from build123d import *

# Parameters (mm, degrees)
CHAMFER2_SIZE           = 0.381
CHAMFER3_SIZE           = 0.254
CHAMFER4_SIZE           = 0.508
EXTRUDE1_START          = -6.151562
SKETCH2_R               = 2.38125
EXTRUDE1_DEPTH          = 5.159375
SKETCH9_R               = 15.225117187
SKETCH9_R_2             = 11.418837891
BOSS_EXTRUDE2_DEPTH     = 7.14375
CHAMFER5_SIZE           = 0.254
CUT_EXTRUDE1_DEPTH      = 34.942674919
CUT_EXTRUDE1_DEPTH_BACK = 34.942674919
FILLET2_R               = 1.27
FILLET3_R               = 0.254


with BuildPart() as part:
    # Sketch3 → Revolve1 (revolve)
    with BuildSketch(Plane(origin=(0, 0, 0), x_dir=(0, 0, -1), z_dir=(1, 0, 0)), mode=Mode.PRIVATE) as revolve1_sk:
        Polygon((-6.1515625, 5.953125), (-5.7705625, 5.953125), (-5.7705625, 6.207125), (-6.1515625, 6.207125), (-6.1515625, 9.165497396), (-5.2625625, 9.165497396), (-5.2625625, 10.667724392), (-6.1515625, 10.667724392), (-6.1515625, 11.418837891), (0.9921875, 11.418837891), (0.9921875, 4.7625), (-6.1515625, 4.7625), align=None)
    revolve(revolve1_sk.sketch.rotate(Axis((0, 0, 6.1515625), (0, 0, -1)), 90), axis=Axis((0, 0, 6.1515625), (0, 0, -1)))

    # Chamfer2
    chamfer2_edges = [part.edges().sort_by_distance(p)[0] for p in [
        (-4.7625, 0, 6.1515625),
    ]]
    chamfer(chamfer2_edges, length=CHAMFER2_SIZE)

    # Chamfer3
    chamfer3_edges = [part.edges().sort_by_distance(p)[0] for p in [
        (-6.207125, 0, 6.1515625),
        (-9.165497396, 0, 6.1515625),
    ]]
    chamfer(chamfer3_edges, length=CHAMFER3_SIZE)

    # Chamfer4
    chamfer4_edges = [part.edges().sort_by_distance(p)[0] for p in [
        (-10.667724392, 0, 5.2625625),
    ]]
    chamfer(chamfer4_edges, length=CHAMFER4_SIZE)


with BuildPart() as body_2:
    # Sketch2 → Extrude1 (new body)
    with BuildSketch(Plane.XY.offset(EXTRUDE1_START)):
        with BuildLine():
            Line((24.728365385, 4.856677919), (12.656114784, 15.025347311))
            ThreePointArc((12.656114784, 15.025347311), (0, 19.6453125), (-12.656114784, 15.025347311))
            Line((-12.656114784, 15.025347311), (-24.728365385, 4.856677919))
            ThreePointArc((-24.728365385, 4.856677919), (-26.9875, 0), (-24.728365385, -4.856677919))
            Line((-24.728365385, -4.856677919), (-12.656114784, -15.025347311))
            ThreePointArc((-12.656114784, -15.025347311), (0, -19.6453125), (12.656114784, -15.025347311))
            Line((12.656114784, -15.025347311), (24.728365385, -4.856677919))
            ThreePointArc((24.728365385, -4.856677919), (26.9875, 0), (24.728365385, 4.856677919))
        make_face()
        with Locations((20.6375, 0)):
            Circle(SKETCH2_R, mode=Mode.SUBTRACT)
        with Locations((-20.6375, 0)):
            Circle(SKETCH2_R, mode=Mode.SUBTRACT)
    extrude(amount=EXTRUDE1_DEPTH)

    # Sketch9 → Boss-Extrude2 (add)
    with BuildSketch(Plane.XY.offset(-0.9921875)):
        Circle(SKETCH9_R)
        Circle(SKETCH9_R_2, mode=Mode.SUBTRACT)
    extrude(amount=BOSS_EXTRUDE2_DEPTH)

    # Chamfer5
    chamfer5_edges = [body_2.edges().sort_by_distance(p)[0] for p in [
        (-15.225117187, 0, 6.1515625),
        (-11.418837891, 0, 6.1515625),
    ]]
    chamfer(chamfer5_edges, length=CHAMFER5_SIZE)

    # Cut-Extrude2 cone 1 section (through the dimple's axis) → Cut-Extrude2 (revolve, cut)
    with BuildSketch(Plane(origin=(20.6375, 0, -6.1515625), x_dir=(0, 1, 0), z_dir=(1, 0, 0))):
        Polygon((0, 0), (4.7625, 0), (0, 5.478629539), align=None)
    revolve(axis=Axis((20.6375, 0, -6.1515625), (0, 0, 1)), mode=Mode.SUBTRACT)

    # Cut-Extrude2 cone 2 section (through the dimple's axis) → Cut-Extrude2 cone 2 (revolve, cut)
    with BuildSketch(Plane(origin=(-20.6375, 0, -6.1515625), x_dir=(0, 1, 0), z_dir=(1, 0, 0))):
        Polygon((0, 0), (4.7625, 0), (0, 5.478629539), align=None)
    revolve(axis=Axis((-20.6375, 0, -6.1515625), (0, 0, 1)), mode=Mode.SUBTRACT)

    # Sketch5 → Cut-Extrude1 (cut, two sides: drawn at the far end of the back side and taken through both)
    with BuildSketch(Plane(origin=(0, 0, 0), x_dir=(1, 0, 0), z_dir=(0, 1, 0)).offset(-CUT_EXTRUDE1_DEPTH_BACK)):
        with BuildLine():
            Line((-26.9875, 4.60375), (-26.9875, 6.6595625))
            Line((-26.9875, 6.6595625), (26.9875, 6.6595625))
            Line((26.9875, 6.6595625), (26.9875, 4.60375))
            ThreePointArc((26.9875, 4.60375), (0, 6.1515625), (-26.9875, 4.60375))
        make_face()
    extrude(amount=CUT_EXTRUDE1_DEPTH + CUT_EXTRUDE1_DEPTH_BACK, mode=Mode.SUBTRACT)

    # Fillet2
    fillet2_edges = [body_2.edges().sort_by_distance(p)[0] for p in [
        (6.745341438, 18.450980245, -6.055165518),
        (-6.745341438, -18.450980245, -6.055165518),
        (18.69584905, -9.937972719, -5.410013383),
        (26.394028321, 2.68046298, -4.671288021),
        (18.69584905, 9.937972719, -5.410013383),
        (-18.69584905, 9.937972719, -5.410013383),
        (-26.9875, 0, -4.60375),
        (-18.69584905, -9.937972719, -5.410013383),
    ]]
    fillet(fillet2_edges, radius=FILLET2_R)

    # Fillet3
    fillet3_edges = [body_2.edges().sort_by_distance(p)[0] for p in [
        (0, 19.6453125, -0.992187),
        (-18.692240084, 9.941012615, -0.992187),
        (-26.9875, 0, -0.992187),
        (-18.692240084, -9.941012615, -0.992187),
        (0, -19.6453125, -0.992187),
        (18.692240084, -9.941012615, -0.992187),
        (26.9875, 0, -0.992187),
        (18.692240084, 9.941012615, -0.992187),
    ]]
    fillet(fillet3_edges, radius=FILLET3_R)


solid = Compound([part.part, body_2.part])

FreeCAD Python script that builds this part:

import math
import FreeCAD as App
import Part
import Sketcher
from FreeCAD import Vector
Q = App.Units.Quantity


def edges_at(feature, points):
    """Names of the edges that pass closest to the given points."""
    edges = feature.Shape.Edges
    near = lambda p: min(range(len(edges)), key=lambda i: edges[i].distToShape(Part.Vertex(*p))[0])
    return sorted({f"Edge{near(p) + 1}" for p in points})


def add_polygon(sketch, points):
    """Adds a closed chain of lines whose ends are joined by coincident constraints."""
    first, n = sketch.GeometryCount, len(points)
    for a, b in zip(points, points[1:] + points[:1]):
        sketch.addGeometry(Part.LineSegment(App.Vector(*a, 0), App.Vector(*b, 0)), False)
    for i in range(n):
        sketch.addConstraint(Sketcher.Constraint("Coincident", first + i, 2, first + (i + 1) % n, 1))

doc = App.newDocument("Part")
params = doc.addObject("Spreadsheet::Sheet", "Params")
for row, (alias, value) in enumerate([
    ("sketch1_width", "0.01 in"),
    ("sketch1_width2", "0.046875 in"),
    ("sketch1_height", "0.015 in"),
    ("sketch1_height2", "0.28125 in"),
    ("sketch1_height3", "0.035 in"),
    ("revolution_angle", "360 deg"),
    ("chamfer_size", "0.015 in"),
    ("chamfer2_size", "0.01 in"),
    ("chamfer3_size", "0.02 in"),
    ("sketch2_radius", "0.25 in"),
    ("sketch2_diameter", "0.1875 in"),
    ("pad1_length", "0.203125 in"),
    ("pad2_length", "0.28125 in"),
    ("chamfer4_size", "0.01 in"),
    ("sketch4_width", "0.1875 in"),
    ("groove_angle", "360 deg"),
    ("sketch5_width", "0.1875 in"),
    ("groove2_angle", "360 deg"),
    ("sketch6_width", "2.125 in"),
    ("fillet_radius", "0.05 in"),
    ("fillet2_radius", "0.01 in"),
], start=1):
    params.set(f"A{row}", alias)
    params.set(f"B{row}", "=" + value)
    params.setAlias(f"B{row}", alias)

body = doc.addObject("PartDesign::Body", "Body")

# Sketch on YZ plane
sketch1 = body.newObject("Sketcher::SketchObject", "Sketch")
sketch1.AttachmentSupport = (doc.getObject("YZ_Plane"), [""])
sketch1.MapMode = "FlatFace"
add_polygon(sketch1, [(5.953125, 5.770562), (5.953125, 6.151562), (4.7625, 6.151562), (4.7625, -0.992188), (11.418838, -0.992188), (11.418838, 6.151562), (10.667724, 6.151562), (10.667724, 5.262562), (9.165497, 5.262562), (9.165497, 6.151562), (6.207125, 6.151562), (6.207125, 5.770562)])  # lines 0-11
sketch1.addConstraint(Sketcher.Constraint("Vertical", 0))
sketch1.addConstraint(Sketcher.Constraint("Horizontal", 1))
sketch1.addConstraint(Sketcher.Constraint("Vertical", 2))
sketch1.addConstraint(Sketcher.Constraint("Horizontal", 3))
sketch1.addConstraint(Sketcher.Constraint("Vertical", 4))
sketch1.addConstraint(Sketcher.Constraint("Horizontal", 5))
sketch1.addConstraint(Sketcher.Constraint("Vertical", 6))
sketch1.addConstraint(Sketcher.Constraint("Horizontal", 7))
sketch1.addConstraint(Sketcher.Constraint("Vertical", 8))
sketch1.addConstraint(Sketcher.Constraint("Horizontal", 9))
sketch1.addConstraint(Sketcher.Constraint("Vertical", 10))
sketch1.addConstraint(Sketcher.Constraint("Horizontal", 11))
sketch1.addConstraint(Sketcher.Constraint("Horizontal", 1, 2, 4, 2))
sketch1.addConstraint(Sketcher.Constraint("Horizontal", 5, 2, 8, 2))
sketch1.addConstraint(Sketcher.Constraint("DistanceX", 11, 2, 11, 1, Q("0.01 in")))
sketch1.addConstraint(Sketcher.Constraint("DistanceX", 1, 2, 1, 1, Q("0.046875 in")))
sketch1.addConstraint(Sketcher.Constraint("DistanceY", 0, 1, 0, 2, Q("0.015 in")))
sketch1.addConstraint(Sketcher.Constraint("DistanceY", 2, 2, 2, 1, Q("0.28125 in")))
sketch1.addConstraint(Sketcher.Constraint("DistanceY", 6, 2, 6, 1, Q("0.035 in")))
sketch1.addConstraint(Sketcher.Constraint("DistanceX", -1, 1, 0, 2, Q("0.234375 in")))
sketch1.addConstraint(Sketcher.Constraint("DistanceX", 0, 2, 5, 2, Q("4.714599 mm")))
sketch1.addConstraint(Sketcher.Constraint("DistanceX", 3, 1, 3, 2, Q("6.656338 mm")))
sketch1.addConstraint(Sketcher.Constraint("DistanceX", 7, 2, 7, 1, Q("1.502227 mm")))
sketch1.addConstraint(Sketcher.Constraint("DistanceY", -1, 1, 0, 2, Q("6.151562 mm")))
sketch1.setExpression("Constraints[26]", "Params.sketch1_width")
sketch1.setExpression("Constraints[27]", "Params.sketch1_width2")
sketch1.setExpression("Constraints[28]", "Params.sketch1_height")
sketch1.setExpression("Constraints[29]", "Params.sketch1_height2")
sketch1.setExpression("Constraints[30]", "Params.sketch1_height3")
revolution = body.newObject("PartDesign::Revolution", "Revolution")
revolution.Profile = sketch1
revolution.ReferenceAxis = (sketch1, ["V_Axis"])
revolution.setExpression("Angle", "Params.revolution_angle")
doc.recompute()

chamfer = body.newObject("PartDesign::Chamfer", "Chamfer")
chamfer.Base = (revolution, edges_at(revolution, [(-4.763, 0, 6.152)]))
chamfer.setExpression("Size", "Params.chamfer_size")
doc.recompute()

chamfer2 = body.newObject("PartDesign::Chamfer", "Chamfer001")
chamfer2.Base = (chamfer, edges_at(chamfer, [(-6.207, 0, 6.152), (-9.165, 0, 6.152)]))
chamfer2.setExpression("Size", "Params.chamfer2_size")
doc.recompute()

chamfer3 = body.newObject("PartDesign::Chamfer", "Chamfer002")
chamfer3.Base = (chamfer2, edges_at(chamfer2, [(-10.668, 0, 5.263)]))
chamfer3.setExpression("Size", "Params.chamfer3_size")
body2 = doc.addObject("PartDesign::Body", "Body001")

# Sketch on XY plane
sketch2 = body2.newObject("Sketcher::SketchObject", "Sketch001")
sketch2.AttachmentSupport = (doc.getObject("XY_Plane001"), [""])
sketch2.MapMode = "FlatFace"
sketch2.AttachmentOffset = App.Placement(Vector(0, 0, -6.151562), App.Rotation())
sketch2.addGeometry(Part.LineSegment(Vector(24.728365, 4.856678, 0), Vector(12.656115, 15.025347, 0)), False)
sketch2.addGeometry(Part.ArcOfCircle(Part.Circle(Vector(0, 0, 0), Vector(0, 0, 1), 19.645313), math.radians(49.891974), math.radians(130.108026)), False)
sketch2.addGeometry(Part.LineSegment(Vector(-12.656115, 15.025347, 0), Vector(-24.728365, 4.856678, 0)), False)
sketch2.addGeometry(Part.ArcOfCircle(Part.Circle(Vector(-20.6375, 0, 0), Vector(0, 0, 1), 6.35), math.radians(130.108026), math.radians(229.891974)), False)
sketch2.addGeometry(Part.LineSegment(Vector(-24.728365, -4.856678, 0), Vector(-12.656115, -15.025347, 0)), False)
sketch2.addGeometry(Part.ArcOfCircle(Part.Circle(Vector(0, 0, 0), Vector(0, 0, 1), 19.645313), math.radians(-130.108026), math.radians(-49.891974)), False)
sketch2.addGeometry(Part.LineSegment(Vector(12.656115, -15.025347, 0), Vector(24.728365, -4.856678, 0)), False)
sketch2.addGeometry(Part.ArcOfCircle(Part.Circle(Vector(20.6375, 0, 0), Vector(0, 0, 1), 6.35), math.radians(-49.891974), math.radians(49.891974)), False)
sketch2.addGeometry(Part.Circle(Vector(-20.6375, 0, 0), Vector(0, 0, 1), 2.38125), False)
sketch2.addGeometry(Part.Circle(Vector(20.6375, 0, 0), Vector(0, 0, 1), 2.38125), False)
sketch2.addConstraint(Sketcher.Constraint("Tangent", 0, 2, 1, 1))
sketch2.addConstraint(Sketcher.Constraint("Tangent", 1, 2, 2, 1))
sketch2.addConstraint(Sketcher.Constraint("Tangent", 2, 2, 3, 1))
sketch2.addConstraint(Sketcher.Constraint("Tangent", 3, 2, 4, 1))
sketch2.addConstraint(Sketcher.Constraint("Tangent", 4, 2, 5, 1))
sketch2.addConstraint(Sketcher.Constraint("Tangent", 5, 2, 6, 1))
sketch2.addConstraint(Sketcher.Constraint("Tangent", 6, 2, 7, 1))
sketch2.addConstraint(Sketcher.Constraint("Tangent", 7, 2, 0, 1))
sketch2.addConstraint(Sketcher.Constraint("Coincident", 1, 3, -1, 1))
sketch2.addConstraint(Sketcher.Constraint("Coincident", 5, 3, -1, 1))
sketch2.addConstraint(Sketcher.Constraint("Coincident", 8, 3, 3, 3))
sketch2.addConstraint(Sketcher.Constraint("Coincident", 9, 3, 7, 3))
sketch2.addConstraint(Sketcher.Constraint("Equal", 1, 5))
sketch2.addConstraint(Sketcher.Constraint("Equal", 3, 7))
sketch2.addConstraint(Sketcher.Constraint("Equal", 8, 9))
sketch2.addConstraint(Sketcher.Constraint("Symmetric", 3, 3, 7, 3, -1, 1))
sketch2.addConstraint(Sketcher.Constraint("PointOnObject", 3, 3, -1))
sketch2.addConstraint(Sketcher.Constraint("Radius", 3, Q("0.25 in")))
sketch2.addConstraint(Sketcher.Constraint("Diameter", 8, Q("0.1875 in")))
sketch2.addConstraint(Sketcher.Constraint("DistanceX", 3, 3, -1, 1, Q("0.8125 in")))
sketch2.addConstraint(Sketcher.Constraint("Radius", 1, Q("19.645313 mm")))
sketch2.setExpression("Constraints[17]", "Params.sketch2_radius")
sketch2.setExpression("Constraints[18]", "Params.sketch2_diameter")
pad1 = body2.newObject("PartDesign::Pad", "Pad")
pad1.Profile = sketch2
pad1.setExpression("Length", "Params.pad1_length")

# Sketch on XY plane
sketch3 = body2.newObject("Sketcher::SketchObject", "Sketch002")
sketch3.AttachmentSupport = (doc.getObject("XY_Plane001"), [""])
sketch3.MapMode = "FlatFace"
sketch3.AttachmentOffset = App.Placement(Vector(0, 0, -0.992188), App.Rotation())
sketch3.addGeometry(Part.Circle(Vector(0, 0, 0), Vector(0, 0, 1), 15.225117), False)
sketch3.addGeometry(Part.Circle(Vector(0, 0, 0), Vector(0, 0, 1), 11.418838), False)
sketch3.addConstraint(Sketcher.Constraint("Coincident", 0, 3, -1, 1))
sketch3.addConstraint(Sketcher.Constraint("Coincident", 1, 3, -1, 1))
sketch3.addConstraint(Sketcher.Constraint("Diameter", 0, Q("30.450234 mm")))
sketch3.addConstraint(Sketcher.Constraint("Diameter", 1, Q("22.837676 mm")))
pad2 = body2.newObject("PartDesign::Pad", "Pad001")
pad2.Profile = sketch3
pad2.setExpression("Length", "Params.pad2_length")
doc.recompute()

chamfer4 = body2.newObject("PartDesign::Chamfer", "Chamfer003")
chamfer4.Base = (pad2, edges_at(pad2, [(-15.225, 0, 6.152), (-11.419, 0, 6.152)]))
chamfer4.setExpression("Size", "Params.chamfer4_size")

# Sketch on YZ plane
sketch4 = body2.newObject("Sketcher::SketchObject", "Sketch003")
sketch4.AttachmentSupport = (doc.getObject("YZ_Plane001"), [""])
sketch4.MapMode = "FlatFace"
sketch4.AttachmentOffset = App.Placement(Vector(0, 0, 0.8125 * 25.4), App.Rotation())
add_polygon(sketch4, [(0, -6.151562), (4.7625, -6.151562), (0, -0.672933)])  # lines 0-2
sketch4.addConstraint(Sketcher.Constraint("Horizontal", 0))
sketch4.addConstraint(Sketcher.Constraint("Vertical", 2))
sketch4.addConstraint(Sketcher.Constraint("PointOnObject", 1, 2, -2))
sketch4.addConstraint(Sketcher.Constraint("Angle", 1, Q("131 deg")))
sketch4.addConstraint(Sketcher.Constraint("DistanceX", 0, 1, 0, 2, Q("0.1875 in")))
sketch4.addConstraint(Sketcher.Constraint("DistanceY", 0, 2, -1, 1, Q("6.151562 mm")))
sketch4.setExpression("Constraints[7]", "Params.sketch4_width")
groove = body2.newObject("PartDesign::Groove", "Groove")
groove.Profile = sketch4
groove.ReferenceAxis = (sketch4, ["V_Axis"])
groove.setExpression("Angle", "Params.groove_angle")

# Sketch on YZ plane
sketch5 = body2.newObject("Sketcher::SketchObject", "Sketch004")
sketch5.AttachmentSupport = (doc.getObject("YZ_Plane001"), [""])
sketch5.MapMode = "FlatFace"
sketch5.AttachmentOffset = App.Placement(Vector(0, 0, -0.8125 * 25.4), App.Rotation())
add_polygon(sketch5, [(0, -6.151562), (4.7625, -6.151562), (0, -0.672933)])  # lines 0-2
sketch5.addConstraint(Sketcher.Constraint("Horizontal", 0))
sketch5.addConstraint(Sketcher.Constraint("Vertical", 2))
sketch5.addConstraint(Sketcher.Constraint("PointOnObject", 1, 2, -2))
sketch5.addConstraint(Sketcher.Constraint("Angle", 1, Q("131 deg")))
sketch5.addConstraint(Sketcher.Constraint("DistanceX", 0, 1, 0, 2, Q("0.1875 in")))
sketch5.addConstraint(Sketcher.Constraint("DistanceY", 0, 2, -1, 1, Q("6.151562 mm")))
sketch5.setExpression("Constraints[7]", "Params.sketch5_width")
groove2 = body2.newObject("PartDesign::Groove", "Groove001")
groove2.Profile = sketch5
groove2.ReferenceAxis = (sketch5, ["V_Axis"])
groove2.setExpression("Angle", "Params.groove2_angle")

# Sketch on XZ plane
sketch6 = body2.newObject("Sketcher::SketchObject", "Sketch005")
sketch6.AttachmentSupport = (doc.getObject("XZ_Plane001"), [""])
sketch6.MapMode = "FlatFace"
sketch6.addGeometry(Part.LineSegment(Vector(-26.9875, -6.659562, 0), Vector(-26.9875, -4.60375, 0)), False)
sketch6.addGeometry(Part.ArcOfCircle(Part.Circle(Vector(0, 229.897985, 0), Vector(0, 0, 1), 236.049547), math.radians(-96.564971), math.radians(-83.435029)), False)
sketch6.addGeometry(Part.LineSegment(Vector(26.9875, -4.60375, 0), Vector(26.9875, -6.659562, 0)), False)
sketch6.addGeometry(Part.LineSegment(Vector(26.9875, -6.659562, 0), Vector(-26.9875, -6.659562, 0)), False)
sketch6.addConstraint(Sketcher.Constraint("Coincident", 0, 2, 1, 1))
sketch6.addConstraint(Sketcher.Constraint("Coincident", 1, 2, 2, 1))
sketch6.addConstraint(Sketcher.Constraint("Coincident", 2, 2, 3, 1))
sketch6.addConstraint(Sketcher.Constraint("Coincident", 3, 2, 0, 1))
sketch6.addConstraint(Sketcher.Constraint("Vertical", 0))
sketch6.addConstraint(Sketcher.Constraint("Vertical", 2))
sketch6.addConstraint(Sketcher.Constraint("Horizontal", 3))
sketch6.addConstraint(Sketcher.Constraint("Symmetric", 0, 2, 1, 2, -2))
sketch6.addConstraint(Sketcher.Constraint("DistanceX", 3, 2, 3, 1, Q("2.125 in")))
sketch6.addConstraint(Sketcher.Constraint("Radius", 1, Q("236.049547 mm")))
sketch6.addConstraint(Sketcher.Constraint("DistanceY", 0, 1, 0, 2, Q("2.055813 mm")))
sketch6.addConstraint(Sketcher.Constraint("DistanceY", 0, 2, -1, 1, Q("4.60375 mm")))
sketch6.setExpression("Constraints[8]", "Params.sketch6_width")
pocket1 = body2.newObject("PartDesign::Pocket", "Pocket")
pocket1.Profile = sketch6
pocket1.Type = "ThroughAll"
pocket1.Midplane = True
doc.recompute()

fillet = body2.newObject("PartDesign::Fillet", "Fillet")
fillet.Base = (pocket1, edges_at(pocket1, [
    (6.745, 18.451, -6.055),
    (-6.745, -18.451, -6.055),
    (18.696, -9.938, -5.41),
    (26.394, 2.68, -4.671),
    (18.696, 9.938, -5.41),
    (-18.696, 9.938, -5.41),
    (-26.988, 0, -4.604),
    (-18.696, -9.938, -5.41),
]))
fillet.setExpression("Radius", "Params.fillet_radius")
doc.recompute()

fillet2 = body2.newObject("PartDesign::Fillet", "Fillet001")
fillet2.Base = (fillet, edges_at(fillet, [
    (0, 19.645, -0.992),
    (-18.692, 9.941, -0.992),
    (-26.988, 0, -0.992),
    (-18.692, -9.941, -0.992),
    (0, -19.645, -0.992),
    (18.692, -9.941, -0.992),
    (26.988, 0, -0.992),
    (18.692, 9.941, -0.992),
]))
fillet2.setExpression("Radius", "Params.fillet2_radius")

doc.recompute()
